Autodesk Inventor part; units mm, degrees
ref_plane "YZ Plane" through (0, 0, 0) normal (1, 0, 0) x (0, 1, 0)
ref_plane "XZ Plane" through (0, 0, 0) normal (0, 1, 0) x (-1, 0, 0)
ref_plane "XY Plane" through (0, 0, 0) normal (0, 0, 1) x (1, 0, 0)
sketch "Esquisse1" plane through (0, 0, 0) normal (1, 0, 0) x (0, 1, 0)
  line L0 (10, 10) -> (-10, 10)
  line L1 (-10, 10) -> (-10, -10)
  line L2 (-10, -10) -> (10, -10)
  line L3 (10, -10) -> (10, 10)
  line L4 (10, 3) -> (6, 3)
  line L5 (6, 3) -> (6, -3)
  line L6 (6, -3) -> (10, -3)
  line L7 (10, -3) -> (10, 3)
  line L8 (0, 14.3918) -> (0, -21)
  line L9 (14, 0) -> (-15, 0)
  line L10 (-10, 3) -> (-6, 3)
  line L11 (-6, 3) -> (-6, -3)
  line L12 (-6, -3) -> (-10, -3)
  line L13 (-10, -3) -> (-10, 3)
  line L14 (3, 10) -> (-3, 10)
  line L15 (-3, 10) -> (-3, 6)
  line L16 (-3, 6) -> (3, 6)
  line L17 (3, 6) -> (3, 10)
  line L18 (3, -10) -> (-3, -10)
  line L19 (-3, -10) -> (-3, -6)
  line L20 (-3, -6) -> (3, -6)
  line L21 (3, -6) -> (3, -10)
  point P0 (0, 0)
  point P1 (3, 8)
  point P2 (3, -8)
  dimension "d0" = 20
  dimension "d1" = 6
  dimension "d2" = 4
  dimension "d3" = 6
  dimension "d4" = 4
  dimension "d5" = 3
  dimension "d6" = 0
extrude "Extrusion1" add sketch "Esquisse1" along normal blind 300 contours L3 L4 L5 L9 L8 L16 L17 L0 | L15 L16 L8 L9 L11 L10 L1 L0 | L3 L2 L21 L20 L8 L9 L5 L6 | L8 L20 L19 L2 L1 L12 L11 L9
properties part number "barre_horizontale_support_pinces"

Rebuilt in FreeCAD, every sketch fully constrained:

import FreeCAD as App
import Part
import Sketcher

V = App.Vector


def add_polygon(sketch, points):
    """Adds a closed chain of lines whose ends are joined by coincident constraints."""
    first, n = sketch.GeometryCount, len(points)
    for a, b in zip(points, points[1:] + points[:1]):
        sketch.addGeometry(Part.LineSegment(App.Vector(*a, 0), App.Vector(*b, 0)), False)
    for i in range(n):
        sketch.addConstraint(Sketcher.Constraint("Coincident", first + i, 2, first + (i + 1) % n, 1))

doc = App.newDocument("Part")
params = doc.addObject("Spreadsheet::Sheet", "Params")
for row, (alias, value) in enumerate([
    ("sketch1_width", "6 mm"),
    ("sketch1_width2", "4 mm"),
    ("pad1_length", "300 mm"),
], start=1):
    params.set(f"A{row}", alias)
    params.set(f"B{row}", "=" + value)
    params.setAlias(f"B{row}", alias)

body = doc.addObject("PartDesign::Body", "Body")

# Sketch on YZ plane
sketch1 = body.newObject("Sketcher::SketchObject", "Sketch")
sketch1.AttachmentSupport = (doc.getObject("YZ_Plane"), [""])
sketch1.MapMode = "FlatFace"
add_polygon(sketch1, [(10, 3), (10, 10), (3, 10), (3, 6), (-3, 6), (-3, 10), (-10, 10), (-10, 3), (-6, 3), (-6, -3), (-10, -3), (-10, -10), (-3, -10), (-3, -6), (3, -6), (3, -10), (10, -10), (10, -3), (6, -3), (6, 3)])  # lines 0-19
sketch1.addConstraint([
    Sketcher.Constraint("Vertical", 0),
    Sketcher.Constraint("Horizontal", 1),
    Sketcher.Constraint("Vertical", 2),
    Sketcher.Constraint("Horizontal", 3),
    Sketcher.Constraint("Vertical", 4),
    Sketcher.Constraint("Horizontal", 5),
    Sketcher.Constraint("Vertical", 6),
    Sketcher.Constraint("Horizontal", 7),
    Sketcher.Constraint("Vertical", 8),
    Sketcher.Constraint("Horizontal", 9),
    Sketcher.Constraint("Vertical", 10),
    Sketcher.Constraint("Horizontal", 11),
    Sketcher.Constraint("Vertical", 12),
    Sketcher.Constraint("Horizontal", 13),
    Sketcher.Constraint("Vertical", 14),
    Sketcher.Constraint("Horizontal", 15),
    Sketcher.Constraint("Vertical", 16),
    Sketcher.Constraint("Horizontal", 17),
    Sketcher.Constraint("Vertical", 18),
    Sketcher.Constraint("Horizontal", 19),
    Sketcher.Constraint("Symmetric", 0, 2, 10, 2, -1, 1),
    Sketcher.Constraint("Symmetric", 2, 2, 12, 2, -1, 1),
    Sketcher.Constraint("Symmetric", 4, 2, 14, 2, -1, 1),
    Sketcher.Constraint("Symmetric", 6, 2, 16, 2, -1, 1),
    Sketcher.Constraint("Symmetric", 8, 2, 18, 2, -1, 1),
    Sketcher.Constraint("Symmetric", 1, 2, 4, 2, -2),
    Sketcher.Constraint("Symmetric", 9, 2, 16, 2, -2),
    Sketcher.Constraint("Equal", 15, 0),
    Sketcher.Constraint("Equal", 19, 2),
    Sketcher.Constraint("Equal", 13, 8),
    Sketcher.Constraint("DistanceX", 3, 2, 3, 1, 6.0),
    Sketcher.Constraint("DistanceX", 7, 1, 7, 2, 4.0),
    Sketcher.Constraint("DistanceY", -1, 1, 2, 2, 6.0),
])
sketch1.setExpression("Constraints[50]", "Params.sketch1_width")
sketch1.setExpression("Constraints[51]", "Params.sketch1_width2")
pad1 = body.newObject("PartDesign::Pad", "Pad")
pad1.Profile = sketch1
pad1.setExpression("Length", "Params.pad1_length")

doc.recompute()
